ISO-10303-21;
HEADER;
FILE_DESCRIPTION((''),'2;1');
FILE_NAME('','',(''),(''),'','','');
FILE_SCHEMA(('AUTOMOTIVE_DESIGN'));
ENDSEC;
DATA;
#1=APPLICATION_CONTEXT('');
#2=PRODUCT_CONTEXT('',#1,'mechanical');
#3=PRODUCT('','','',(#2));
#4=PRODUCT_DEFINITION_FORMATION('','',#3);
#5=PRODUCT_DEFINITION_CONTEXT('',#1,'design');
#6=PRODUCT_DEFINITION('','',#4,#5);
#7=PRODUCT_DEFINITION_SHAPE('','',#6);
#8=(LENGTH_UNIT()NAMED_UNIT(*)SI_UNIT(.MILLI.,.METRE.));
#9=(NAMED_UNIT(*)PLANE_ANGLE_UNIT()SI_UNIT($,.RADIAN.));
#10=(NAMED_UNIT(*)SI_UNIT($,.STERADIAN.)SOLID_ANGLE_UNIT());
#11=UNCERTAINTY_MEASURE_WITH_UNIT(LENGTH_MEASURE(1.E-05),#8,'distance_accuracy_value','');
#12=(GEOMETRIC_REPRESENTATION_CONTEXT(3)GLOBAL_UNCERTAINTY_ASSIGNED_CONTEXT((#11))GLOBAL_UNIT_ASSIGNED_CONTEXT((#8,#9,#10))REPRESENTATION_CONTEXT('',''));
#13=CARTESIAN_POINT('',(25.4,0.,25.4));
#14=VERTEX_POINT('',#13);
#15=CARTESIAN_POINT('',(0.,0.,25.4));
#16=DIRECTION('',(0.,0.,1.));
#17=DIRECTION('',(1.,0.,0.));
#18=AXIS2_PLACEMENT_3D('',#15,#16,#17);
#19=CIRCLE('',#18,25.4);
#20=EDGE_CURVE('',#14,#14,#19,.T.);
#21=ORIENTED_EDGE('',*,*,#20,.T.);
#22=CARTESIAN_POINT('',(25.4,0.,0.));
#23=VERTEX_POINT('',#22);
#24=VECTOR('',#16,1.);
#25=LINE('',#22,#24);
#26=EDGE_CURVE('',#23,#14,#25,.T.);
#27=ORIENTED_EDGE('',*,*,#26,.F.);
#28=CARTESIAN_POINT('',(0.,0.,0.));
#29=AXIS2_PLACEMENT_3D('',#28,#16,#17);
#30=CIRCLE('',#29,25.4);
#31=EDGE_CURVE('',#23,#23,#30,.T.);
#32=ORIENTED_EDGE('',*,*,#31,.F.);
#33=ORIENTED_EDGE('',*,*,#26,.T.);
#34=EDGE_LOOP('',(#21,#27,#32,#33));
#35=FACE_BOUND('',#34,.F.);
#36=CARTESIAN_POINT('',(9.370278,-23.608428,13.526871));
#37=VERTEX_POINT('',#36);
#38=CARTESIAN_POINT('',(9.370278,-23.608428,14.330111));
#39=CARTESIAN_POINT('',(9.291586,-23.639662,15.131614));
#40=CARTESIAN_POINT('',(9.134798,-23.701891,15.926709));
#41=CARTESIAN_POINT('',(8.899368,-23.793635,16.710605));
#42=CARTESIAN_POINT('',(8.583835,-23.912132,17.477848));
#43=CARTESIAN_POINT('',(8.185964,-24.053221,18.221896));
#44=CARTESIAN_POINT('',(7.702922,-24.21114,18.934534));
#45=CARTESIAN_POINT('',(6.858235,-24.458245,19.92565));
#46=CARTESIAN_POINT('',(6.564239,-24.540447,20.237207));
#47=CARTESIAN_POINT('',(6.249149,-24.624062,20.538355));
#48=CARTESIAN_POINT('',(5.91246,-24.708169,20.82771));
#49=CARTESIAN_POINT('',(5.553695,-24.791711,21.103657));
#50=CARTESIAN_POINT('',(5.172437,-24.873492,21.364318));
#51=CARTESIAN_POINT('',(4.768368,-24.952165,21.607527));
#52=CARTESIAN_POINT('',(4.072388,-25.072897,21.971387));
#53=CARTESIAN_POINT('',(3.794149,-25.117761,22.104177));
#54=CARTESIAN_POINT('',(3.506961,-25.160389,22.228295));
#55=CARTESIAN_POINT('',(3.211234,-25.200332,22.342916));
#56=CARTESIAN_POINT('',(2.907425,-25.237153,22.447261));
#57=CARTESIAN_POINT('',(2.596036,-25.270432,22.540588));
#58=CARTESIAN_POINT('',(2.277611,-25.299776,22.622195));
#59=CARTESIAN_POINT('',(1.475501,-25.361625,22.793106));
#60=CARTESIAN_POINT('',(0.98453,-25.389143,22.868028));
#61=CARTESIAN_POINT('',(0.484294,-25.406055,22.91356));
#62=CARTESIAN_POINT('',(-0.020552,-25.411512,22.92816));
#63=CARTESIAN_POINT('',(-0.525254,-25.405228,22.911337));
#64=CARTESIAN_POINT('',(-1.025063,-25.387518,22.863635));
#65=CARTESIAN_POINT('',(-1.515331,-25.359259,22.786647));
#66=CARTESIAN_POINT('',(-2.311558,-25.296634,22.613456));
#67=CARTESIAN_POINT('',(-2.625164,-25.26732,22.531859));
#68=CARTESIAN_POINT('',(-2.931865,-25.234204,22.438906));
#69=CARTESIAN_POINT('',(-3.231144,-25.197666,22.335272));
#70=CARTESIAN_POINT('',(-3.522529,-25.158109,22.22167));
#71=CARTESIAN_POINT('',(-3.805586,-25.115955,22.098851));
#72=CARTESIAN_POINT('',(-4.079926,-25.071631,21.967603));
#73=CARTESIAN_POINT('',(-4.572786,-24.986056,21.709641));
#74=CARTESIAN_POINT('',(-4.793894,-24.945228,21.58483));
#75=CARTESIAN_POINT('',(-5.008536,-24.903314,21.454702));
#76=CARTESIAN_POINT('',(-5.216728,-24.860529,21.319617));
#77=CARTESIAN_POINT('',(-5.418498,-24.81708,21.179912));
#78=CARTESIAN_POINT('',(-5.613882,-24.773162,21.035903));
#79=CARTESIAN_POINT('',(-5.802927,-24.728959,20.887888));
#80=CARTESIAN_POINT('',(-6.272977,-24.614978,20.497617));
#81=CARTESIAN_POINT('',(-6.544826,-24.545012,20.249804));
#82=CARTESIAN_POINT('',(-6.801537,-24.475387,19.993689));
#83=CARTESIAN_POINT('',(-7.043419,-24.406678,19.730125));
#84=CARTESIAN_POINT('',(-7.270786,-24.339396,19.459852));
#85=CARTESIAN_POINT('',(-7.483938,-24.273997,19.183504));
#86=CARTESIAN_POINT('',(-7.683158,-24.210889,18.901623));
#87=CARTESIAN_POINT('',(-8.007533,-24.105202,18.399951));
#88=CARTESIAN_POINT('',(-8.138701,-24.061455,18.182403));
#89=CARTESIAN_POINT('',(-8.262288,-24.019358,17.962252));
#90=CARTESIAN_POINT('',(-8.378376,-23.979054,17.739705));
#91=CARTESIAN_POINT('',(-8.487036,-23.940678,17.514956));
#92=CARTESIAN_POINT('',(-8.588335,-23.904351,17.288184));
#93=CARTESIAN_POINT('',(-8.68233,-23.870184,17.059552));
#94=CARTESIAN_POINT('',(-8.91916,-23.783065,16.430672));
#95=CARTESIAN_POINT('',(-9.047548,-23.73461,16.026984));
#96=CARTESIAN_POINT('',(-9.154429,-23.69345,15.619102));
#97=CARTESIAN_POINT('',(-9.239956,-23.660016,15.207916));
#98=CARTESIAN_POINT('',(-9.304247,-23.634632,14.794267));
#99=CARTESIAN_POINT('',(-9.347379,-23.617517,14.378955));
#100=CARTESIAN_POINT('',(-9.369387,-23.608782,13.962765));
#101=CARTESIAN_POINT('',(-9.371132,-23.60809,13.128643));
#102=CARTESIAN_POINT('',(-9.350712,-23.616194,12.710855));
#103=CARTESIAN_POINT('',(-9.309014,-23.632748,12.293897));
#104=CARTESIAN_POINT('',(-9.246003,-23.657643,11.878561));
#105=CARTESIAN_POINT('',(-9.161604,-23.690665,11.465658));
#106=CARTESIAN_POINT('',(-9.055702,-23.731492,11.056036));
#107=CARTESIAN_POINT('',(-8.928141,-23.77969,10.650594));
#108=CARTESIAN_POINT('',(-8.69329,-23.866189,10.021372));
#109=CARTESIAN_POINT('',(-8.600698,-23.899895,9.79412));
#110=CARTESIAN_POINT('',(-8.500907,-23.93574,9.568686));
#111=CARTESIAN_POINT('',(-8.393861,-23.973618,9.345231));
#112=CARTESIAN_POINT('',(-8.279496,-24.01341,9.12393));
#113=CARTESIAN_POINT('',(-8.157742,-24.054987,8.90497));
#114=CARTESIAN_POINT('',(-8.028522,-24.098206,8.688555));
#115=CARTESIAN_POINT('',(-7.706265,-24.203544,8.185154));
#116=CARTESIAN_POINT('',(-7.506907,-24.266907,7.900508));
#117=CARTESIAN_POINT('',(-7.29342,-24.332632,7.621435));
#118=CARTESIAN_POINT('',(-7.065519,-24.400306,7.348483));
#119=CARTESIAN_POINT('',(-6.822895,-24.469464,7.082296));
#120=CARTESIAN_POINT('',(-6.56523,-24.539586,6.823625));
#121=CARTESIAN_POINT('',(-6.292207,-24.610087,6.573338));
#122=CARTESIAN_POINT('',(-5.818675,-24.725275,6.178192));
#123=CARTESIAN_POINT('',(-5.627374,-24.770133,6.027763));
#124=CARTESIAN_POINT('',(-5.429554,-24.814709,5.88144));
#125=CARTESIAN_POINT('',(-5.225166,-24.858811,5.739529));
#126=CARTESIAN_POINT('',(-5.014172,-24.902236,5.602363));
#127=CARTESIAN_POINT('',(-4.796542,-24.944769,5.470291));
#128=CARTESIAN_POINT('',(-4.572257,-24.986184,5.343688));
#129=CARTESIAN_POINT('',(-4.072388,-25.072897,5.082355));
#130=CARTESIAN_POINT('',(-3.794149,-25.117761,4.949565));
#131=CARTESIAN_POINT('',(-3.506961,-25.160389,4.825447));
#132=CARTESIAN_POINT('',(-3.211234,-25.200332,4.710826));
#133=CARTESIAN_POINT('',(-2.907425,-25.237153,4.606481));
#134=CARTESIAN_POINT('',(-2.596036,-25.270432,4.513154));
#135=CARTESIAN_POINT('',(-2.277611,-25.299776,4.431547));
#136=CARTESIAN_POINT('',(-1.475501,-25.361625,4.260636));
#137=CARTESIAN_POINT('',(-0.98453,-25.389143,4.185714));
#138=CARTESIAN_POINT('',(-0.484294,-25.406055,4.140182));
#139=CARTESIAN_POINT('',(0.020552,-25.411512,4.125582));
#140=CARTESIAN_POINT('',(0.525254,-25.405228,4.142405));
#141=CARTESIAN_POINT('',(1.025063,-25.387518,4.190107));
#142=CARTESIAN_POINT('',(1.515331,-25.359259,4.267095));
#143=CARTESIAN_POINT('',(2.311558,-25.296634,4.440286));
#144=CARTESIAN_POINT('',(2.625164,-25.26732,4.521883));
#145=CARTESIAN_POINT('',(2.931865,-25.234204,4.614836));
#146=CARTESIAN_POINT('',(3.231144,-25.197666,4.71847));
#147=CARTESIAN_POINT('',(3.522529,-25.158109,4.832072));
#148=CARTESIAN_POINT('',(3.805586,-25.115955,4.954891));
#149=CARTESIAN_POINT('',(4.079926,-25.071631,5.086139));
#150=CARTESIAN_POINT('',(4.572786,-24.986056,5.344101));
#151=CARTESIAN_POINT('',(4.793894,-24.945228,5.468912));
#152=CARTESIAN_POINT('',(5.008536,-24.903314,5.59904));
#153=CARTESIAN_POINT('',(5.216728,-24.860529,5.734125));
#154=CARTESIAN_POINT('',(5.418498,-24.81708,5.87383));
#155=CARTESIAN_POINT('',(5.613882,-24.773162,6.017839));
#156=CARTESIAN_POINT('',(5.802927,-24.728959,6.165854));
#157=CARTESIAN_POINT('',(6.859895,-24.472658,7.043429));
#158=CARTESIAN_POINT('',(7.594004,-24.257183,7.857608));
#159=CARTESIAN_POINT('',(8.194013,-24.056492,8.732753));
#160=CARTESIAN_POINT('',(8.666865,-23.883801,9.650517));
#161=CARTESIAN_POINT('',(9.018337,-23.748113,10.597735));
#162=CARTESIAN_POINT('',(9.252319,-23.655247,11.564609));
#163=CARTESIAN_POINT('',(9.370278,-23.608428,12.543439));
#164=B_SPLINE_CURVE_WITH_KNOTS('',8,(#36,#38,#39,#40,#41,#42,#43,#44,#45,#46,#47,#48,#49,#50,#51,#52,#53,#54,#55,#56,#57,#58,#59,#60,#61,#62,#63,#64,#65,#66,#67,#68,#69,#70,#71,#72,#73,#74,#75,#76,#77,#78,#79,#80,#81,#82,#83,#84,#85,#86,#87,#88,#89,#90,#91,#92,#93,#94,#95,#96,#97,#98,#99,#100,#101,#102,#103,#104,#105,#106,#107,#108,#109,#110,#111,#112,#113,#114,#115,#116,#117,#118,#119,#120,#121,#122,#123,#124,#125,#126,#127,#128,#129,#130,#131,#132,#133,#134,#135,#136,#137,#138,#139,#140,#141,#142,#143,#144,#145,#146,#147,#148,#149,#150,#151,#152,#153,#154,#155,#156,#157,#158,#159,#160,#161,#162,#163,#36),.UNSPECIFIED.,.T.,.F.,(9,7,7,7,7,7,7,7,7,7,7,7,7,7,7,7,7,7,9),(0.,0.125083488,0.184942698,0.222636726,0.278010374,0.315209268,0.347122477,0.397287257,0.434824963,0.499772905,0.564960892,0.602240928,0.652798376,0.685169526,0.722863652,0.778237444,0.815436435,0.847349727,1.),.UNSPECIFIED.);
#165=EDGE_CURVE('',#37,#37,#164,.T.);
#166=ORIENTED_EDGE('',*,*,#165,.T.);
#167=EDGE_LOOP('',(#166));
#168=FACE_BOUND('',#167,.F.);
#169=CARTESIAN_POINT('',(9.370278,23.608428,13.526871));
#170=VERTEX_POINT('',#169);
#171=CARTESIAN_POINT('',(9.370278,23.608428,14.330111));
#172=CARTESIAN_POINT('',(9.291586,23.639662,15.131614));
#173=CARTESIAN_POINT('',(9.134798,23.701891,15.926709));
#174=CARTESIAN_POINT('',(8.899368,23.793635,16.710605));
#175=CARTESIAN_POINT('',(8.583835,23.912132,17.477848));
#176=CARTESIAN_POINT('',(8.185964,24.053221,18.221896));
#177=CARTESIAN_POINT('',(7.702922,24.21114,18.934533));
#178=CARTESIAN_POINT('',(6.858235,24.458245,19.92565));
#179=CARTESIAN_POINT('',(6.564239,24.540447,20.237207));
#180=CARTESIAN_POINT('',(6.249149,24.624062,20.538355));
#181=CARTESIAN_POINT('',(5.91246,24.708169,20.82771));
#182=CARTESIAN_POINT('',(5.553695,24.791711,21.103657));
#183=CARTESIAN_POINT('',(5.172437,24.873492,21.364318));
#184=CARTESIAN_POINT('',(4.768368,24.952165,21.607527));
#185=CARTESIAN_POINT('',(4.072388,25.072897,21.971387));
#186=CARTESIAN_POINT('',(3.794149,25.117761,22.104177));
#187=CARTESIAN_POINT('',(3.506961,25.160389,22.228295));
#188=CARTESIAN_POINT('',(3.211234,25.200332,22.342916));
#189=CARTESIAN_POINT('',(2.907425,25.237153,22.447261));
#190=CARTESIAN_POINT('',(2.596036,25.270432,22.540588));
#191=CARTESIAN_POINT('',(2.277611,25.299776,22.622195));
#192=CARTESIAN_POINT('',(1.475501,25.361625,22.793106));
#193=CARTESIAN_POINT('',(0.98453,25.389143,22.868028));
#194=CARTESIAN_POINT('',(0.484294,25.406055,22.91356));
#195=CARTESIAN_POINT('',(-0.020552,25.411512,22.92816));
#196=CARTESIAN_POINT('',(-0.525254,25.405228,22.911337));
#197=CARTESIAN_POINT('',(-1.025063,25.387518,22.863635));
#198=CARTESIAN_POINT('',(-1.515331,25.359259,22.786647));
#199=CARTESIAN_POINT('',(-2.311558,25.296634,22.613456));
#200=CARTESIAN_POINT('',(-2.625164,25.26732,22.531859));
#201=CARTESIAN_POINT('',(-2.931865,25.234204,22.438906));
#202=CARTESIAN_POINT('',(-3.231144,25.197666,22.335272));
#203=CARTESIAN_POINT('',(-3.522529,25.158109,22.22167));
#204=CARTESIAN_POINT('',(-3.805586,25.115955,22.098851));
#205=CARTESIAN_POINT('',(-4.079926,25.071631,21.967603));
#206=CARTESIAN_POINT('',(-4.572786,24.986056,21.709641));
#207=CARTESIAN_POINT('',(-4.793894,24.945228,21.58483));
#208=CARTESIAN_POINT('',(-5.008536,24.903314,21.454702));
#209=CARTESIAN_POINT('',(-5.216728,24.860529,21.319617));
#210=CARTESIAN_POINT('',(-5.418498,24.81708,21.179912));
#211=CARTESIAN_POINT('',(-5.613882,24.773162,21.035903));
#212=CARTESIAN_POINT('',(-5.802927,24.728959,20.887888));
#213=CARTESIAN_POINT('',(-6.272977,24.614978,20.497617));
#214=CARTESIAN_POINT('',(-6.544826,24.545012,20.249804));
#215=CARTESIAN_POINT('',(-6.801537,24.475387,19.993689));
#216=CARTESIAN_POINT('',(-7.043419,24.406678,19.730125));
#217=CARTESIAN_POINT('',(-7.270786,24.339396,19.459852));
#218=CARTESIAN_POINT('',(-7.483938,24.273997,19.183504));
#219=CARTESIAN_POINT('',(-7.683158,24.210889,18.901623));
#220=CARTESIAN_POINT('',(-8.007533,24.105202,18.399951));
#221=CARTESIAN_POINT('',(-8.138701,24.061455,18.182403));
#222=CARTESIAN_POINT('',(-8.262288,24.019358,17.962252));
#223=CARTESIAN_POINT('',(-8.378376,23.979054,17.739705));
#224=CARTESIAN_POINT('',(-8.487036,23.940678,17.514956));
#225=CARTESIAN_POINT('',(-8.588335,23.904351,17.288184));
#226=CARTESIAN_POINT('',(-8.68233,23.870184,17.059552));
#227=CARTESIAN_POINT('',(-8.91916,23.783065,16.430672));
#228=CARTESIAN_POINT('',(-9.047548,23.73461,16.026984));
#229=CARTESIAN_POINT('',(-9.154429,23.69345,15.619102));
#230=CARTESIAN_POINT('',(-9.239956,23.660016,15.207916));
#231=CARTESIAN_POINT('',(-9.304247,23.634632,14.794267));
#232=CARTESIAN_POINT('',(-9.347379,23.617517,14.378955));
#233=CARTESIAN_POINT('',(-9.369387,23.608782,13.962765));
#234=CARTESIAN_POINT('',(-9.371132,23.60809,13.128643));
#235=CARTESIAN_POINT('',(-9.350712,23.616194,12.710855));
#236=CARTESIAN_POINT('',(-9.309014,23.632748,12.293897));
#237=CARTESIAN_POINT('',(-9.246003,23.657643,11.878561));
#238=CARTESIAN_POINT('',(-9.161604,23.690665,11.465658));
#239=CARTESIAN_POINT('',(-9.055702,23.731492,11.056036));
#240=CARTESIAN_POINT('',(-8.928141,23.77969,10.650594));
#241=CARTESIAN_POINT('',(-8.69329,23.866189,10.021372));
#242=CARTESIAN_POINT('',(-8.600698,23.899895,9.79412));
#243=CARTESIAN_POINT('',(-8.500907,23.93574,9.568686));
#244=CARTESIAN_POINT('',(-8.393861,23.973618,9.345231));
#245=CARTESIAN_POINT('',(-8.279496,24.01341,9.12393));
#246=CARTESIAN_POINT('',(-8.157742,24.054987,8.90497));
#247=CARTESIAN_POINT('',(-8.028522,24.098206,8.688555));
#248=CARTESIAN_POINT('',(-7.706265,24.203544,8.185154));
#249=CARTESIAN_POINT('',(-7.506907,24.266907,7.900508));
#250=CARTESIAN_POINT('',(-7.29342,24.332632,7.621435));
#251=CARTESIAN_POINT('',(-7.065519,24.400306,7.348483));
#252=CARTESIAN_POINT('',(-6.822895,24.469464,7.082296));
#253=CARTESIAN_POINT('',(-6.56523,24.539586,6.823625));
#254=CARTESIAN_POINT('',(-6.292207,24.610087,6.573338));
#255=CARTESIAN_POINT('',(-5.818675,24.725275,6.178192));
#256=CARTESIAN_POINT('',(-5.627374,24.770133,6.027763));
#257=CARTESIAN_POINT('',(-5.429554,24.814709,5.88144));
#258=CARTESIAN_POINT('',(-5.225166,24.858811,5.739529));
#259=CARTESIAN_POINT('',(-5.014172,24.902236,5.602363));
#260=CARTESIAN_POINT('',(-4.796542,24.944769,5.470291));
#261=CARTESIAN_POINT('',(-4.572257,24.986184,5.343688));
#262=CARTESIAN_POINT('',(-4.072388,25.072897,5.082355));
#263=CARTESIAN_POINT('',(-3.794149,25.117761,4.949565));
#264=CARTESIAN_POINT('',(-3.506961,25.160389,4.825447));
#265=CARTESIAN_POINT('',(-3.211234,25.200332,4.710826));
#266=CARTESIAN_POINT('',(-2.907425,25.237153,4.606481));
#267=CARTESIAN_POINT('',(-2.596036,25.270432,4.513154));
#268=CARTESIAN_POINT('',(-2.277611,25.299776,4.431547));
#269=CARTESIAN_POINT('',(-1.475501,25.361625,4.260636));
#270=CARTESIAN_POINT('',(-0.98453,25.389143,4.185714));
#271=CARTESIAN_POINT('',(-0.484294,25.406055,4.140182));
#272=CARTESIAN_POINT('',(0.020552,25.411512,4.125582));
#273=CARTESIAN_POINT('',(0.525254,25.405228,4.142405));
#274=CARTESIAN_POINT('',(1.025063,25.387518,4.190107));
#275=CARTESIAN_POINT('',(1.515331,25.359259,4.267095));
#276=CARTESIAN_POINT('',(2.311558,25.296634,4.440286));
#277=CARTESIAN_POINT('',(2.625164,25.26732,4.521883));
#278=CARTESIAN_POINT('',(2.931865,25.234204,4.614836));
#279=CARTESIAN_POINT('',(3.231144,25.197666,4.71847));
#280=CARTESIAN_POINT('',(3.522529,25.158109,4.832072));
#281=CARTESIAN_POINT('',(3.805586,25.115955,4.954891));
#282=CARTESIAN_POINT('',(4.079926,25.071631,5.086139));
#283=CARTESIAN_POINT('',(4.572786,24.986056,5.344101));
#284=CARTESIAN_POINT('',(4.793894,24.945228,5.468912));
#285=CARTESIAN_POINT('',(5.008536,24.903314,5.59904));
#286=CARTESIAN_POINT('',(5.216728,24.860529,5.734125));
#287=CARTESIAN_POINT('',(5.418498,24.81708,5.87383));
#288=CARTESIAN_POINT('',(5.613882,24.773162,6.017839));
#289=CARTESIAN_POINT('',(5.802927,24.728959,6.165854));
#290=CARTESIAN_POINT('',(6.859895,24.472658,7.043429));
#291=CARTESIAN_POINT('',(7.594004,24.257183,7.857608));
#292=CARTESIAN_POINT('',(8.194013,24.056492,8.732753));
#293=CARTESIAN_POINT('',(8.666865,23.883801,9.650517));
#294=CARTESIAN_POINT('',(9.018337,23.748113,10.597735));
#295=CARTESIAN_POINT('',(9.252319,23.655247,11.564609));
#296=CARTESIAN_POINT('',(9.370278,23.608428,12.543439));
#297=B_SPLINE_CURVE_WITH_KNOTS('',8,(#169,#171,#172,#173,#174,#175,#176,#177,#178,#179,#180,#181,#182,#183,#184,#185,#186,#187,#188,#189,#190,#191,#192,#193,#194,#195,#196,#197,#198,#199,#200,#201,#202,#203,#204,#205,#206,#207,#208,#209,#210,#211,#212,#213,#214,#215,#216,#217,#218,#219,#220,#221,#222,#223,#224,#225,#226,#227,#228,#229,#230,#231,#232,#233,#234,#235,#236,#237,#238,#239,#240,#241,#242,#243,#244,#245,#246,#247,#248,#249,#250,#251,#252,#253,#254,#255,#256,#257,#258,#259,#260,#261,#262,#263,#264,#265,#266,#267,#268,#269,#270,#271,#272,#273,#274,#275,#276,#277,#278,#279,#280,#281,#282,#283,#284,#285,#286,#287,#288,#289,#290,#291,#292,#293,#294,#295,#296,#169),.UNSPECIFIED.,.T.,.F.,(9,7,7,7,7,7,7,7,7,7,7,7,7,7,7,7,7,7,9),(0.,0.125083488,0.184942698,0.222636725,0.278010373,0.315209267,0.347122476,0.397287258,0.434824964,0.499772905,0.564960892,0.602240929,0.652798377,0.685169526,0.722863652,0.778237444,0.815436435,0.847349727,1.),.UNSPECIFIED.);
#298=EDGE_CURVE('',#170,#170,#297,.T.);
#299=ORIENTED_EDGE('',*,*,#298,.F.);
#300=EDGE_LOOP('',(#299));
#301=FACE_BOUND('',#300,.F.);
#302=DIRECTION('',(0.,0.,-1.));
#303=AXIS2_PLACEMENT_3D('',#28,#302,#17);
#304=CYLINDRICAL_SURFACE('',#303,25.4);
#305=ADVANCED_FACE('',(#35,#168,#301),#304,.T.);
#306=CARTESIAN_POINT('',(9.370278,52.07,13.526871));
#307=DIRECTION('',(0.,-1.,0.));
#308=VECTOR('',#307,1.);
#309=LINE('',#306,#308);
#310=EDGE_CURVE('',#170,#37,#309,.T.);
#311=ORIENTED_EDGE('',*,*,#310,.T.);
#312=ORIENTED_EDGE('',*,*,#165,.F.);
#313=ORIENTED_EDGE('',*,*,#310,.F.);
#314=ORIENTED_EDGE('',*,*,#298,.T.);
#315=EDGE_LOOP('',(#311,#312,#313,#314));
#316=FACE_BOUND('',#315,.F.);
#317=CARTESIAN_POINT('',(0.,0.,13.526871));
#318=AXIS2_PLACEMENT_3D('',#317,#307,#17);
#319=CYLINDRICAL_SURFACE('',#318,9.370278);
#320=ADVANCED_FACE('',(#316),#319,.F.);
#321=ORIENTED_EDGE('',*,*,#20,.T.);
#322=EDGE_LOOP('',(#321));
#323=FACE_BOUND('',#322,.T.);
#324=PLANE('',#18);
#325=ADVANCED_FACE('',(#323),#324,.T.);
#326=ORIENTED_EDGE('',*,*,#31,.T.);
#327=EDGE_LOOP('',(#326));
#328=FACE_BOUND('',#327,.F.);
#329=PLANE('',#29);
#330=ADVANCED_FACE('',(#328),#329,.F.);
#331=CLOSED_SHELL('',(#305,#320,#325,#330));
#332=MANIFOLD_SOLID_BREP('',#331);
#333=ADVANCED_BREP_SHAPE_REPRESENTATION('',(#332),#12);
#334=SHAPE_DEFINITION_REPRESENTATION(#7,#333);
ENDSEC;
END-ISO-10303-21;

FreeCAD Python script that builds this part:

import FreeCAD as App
import Part
import Sketcher
Q = App.Units.Quantity

doc = App.newDocument("Part")
body = doc.addObject("PartDesign::Body", "Body")

sketch1 = doc.addObject("Sketcher::SketchObject", "Sketch")
body.addObject(sketch1)
sketch1.AttachmentSupport = (doc.XY_Plane, [""])
sketch1.MapMode = "FlatFace"
sketch1.addGeometry(Part.Circle(App.Vector(0, 0, 0), App.Vector(0, 0, 1), 25), False)
sketch1.addConstraint(Sketcher.Constraint("Coincident", 0, 3, -1, 1))
sketch1.addConstraint(Sketcher.Constraint("Diameter", 0, Q("2 in")))
pad1 = doc.addObject("PartDesign::Pad", "Pad")
body.addObject(pad1)
pad1.Profile = sketch1
pad1.Length = Q("1 in")

sketch2 = doc.addObject("Sketcher::SketchObject", "Sketch001")
body.addObject(sketch2)
sketch2.AttachmentSupport = (doc.XZ_Plane, [""])
sketch2.MapMode = "FlatFace"
sketch2.addGeometry(Part.Circle(App.Vector(0, 14, 0), App.Vector(0, 0, 1), 9), False)
sketch2.addConstraint(Sketcher.Constraint("PointOnObject", 0, 3, -2))
sketch2.addConstraint(Sketcher.Constraint("Diameter", 0, 18.740556))
sketch2.addConstraint(Sketcher.Constraint("DistanceY", -1, 1, 0, 3, 13.526871))
pocket1 = doc.addObject("PartDesign::Pocket", "Pocket")
body.addObject(pocket1)
pocket1.Profile = sketch2
pocket1.Length = Q("4.1 in")
pocket1.Midplane = True

doc.recompute()
